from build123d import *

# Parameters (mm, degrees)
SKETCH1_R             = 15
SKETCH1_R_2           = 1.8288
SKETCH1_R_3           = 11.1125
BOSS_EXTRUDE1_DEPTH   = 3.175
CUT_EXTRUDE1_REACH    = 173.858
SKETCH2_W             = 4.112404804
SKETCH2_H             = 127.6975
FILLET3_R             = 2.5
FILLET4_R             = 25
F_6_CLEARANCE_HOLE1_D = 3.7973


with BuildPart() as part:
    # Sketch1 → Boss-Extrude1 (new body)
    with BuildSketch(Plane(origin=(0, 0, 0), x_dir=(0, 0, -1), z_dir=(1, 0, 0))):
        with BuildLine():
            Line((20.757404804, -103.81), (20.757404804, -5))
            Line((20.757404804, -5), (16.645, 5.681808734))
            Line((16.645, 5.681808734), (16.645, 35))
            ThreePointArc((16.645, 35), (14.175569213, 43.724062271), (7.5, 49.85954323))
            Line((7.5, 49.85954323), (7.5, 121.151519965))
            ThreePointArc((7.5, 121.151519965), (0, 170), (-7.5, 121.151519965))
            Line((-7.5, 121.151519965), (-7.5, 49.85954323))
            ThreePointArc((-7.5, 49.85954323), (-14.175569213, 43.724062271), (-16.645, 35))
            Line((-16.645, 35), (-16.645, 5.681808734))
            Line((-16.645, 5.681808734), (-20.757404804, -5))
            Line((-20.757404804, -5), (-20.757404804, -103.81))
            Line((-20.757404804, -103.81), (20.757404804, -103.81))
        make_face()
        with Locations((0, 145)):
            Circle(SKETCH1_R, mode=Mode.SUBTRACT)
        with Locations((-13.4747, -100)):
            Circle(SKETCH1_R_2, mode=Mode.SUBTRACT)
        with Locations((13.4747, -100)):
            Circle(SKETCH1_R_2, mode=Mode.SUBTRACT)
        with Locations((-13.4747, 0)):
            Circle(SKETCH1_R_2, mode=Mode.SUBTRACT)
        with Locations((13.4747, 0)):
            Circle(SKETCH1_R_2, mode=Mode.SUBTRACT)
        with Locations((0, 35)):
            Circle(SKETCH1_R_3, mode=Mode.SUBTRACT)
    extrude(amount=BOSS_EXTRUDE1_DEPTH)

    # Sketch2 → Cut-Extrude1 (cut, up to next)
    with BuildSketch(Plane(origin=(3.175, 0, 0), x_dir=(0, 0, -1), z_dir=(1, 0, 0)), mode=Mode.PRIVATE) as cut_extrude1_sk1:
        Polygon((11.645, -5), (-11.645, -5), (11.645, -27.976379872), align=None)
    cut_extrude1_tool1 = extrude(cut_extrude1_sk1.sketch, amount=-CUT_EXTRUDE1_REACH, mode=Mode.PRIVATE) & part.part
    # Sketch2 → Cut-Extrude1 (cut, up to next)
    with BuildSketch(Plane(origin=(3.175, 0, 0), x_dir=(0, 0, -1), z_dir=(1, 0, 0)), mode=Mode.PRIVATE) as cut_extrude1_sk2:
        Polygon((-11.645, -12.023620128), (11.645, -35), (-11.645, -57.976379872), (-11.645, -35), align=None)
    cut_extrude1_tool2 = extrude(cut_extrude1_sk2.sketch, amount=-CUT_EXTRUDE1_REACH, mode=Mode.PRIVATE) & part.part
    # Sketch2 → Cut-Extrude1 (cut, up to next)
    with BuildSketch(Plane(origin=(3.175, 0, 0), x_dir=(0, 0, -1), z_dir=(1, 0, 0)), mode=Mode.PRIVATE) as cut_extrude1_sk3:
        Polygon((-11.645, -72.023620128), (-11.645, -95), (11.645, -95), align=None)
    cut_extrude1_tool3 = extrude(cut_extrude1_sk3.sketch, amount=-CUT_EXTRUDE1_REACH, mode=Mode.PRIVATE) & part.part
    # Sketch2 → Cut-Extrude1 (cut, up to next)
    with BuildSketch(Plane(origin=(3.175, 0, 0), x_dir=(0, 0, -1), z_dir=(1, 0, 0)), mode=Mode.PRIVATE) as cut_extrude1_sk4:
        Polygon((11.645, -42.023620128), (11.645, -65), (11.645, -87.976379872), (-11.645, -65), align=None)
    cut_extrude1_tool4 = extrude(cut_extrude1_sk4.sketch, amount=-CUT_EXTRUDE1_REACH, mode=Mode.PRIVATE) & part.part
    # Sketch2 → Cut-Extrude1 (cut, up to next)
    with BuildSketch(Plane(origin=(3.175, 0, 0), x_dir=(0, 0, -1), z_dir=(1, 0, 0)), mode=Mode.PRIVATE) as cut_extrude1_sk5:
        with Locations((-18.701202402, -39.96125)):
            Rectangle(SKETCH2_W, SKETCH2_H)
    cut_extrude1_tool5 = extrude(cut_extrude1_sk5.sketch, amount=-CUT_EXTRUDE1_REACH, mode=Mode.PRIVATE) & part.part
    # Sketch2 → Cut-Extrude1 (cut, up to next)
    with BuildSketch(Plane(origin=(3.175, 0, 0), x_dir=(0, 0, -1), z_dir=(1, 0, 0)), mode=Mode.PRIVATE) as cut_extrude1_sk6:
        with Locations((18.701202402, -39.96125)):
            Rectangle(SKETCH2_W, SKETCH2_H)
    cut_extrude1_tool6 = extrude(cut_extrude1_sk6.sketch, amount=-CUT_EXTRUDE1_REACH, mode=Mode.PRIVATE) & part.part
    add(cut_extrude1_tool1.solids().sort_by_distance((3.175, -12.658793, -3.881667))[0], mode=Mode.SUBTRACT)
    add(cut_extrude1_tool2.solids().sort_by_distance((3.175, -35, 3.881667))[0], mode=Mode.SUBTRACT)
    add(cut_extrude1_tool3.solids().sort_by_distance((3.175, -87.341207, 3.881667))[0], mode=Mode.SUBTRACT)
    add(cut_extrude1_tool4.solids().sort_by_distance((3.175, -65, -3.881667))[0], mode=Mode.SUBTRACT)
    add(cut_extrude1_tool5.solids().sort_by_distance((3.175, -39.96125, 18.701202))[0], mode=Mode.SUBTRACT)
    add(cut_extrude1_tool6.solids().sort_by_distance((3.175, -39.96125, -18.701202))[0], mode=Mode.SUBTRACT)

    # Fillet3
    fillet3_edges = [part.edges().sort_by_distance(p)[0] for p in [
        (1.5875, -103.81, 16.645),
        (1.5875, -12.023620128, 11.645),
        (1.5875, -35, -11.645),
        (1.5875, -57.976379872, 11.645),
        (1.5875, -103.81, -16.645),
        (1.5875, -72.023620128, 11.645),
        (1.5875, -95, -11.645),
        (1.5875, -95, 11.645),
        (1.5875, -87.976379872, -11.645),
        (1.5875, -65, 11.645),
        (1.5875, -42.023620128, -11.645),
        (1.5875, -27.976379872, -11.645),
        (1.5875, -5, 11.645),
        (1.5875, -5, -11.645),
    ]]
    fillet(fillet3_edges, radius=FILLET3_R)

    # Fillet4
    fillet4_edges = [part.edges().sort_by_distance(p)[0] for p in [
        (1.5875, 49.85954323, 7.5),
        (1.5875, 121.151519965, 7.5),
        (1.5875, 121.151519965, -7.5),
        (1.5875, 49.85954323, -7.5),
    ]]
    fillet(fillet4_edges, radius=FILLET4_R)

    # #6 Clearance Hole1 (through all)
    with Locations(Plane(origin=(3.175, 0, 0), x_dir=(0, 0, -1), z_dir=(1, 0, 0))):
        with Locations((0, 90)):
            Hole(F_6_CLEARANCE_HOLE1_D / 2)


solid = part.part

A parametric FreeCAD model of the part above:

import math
import FreeCAD as App
import Part
import Sketcher
from FreeCAD import Vector


def edges_at(feature, points):
    """Names of the edges that pass closest to the given points."""
    edges = feature.Shape.Edges
    near = lambda p: min(range(len(edges)), key=lambda i: edges[i].distToShape(Part.Vertex(*p))[0])
    return sorted({f"Edge{near(p) + 1}" for p in points})


def add_polygon(sketch, points):
    """Adds a closed chain of lines whose ends are joined by coincident constraints."""
    first, n = sketch.GeometryCount, len(points)
    for a, b in zip(points, points[1:] + points[:1]):
        sketch.addGeometry(Part.LineSegment(App.Vector(*a, 0), App.Vector(*b, 0)), False)
    for i in range(n):
        sketch.addConstraint(Sketcher.Constraint("Coincident", first + i, 2, first + (i + 1) % n, 1))

doc = App.newDocument("Part")
body = doc.addObject("PartDesign::Body", "Body")

sketch1 = body.newObject("Sketcher::SketchObject", "Sketch")
sketch1.AttachmentSupport = (doc.getObject("YZ_Plane"), [""])
sketch1.MapMode = "FlatFace"
sketch1.addGeometry(Part.LineSegment(Vector(-103.8, -20.8, 0), Vector(-5, -20.8, 0)), False)
sketch1.addGeometry(Part.LineSegment(Vector(-5, -20.8, 0), Vector(5.7, -16.6, 0)), False)
sketch1.addGeometry(Part.LineSegment(Vector(5.7, -16.6, 0), Vector(35, -16.6, 0)), False)
sketch1.addGeometry(Part.ArcOfCircle(Part.Circle(Vector(35, 0, 0), Vector(0, 0, 1), 16.6), math.radians(-90), math.radians(-27)), False)
sketch1.addGeometry(Part.LineSegment(Vector(49.9, -7.5, 0), Vector(121.2, -7.5, 0)), False)
sketch1.addGeometry(Part.ArcOfCircle(Part.Circle(Vector(145, 0, 0), Vector(0, 0, 1), 25), math.radians(-163), math.radians(163)), False)
sketch1.addGeometry(Part.LineSegment(Vector(121.2, 7.5, 0), Vector(49.9, 7.5, 0)), False)
sketch1.addGeometry(Part.ArcOfCircle(Part.Circle(Vector(35, 0, 0), Vector(0, 0, 1), 16.6), math.radians(27), math.radians(90)), False)
sketch1.addGeometry(Part.LineSegment(Vector(35, 16.6, 0), Vector(5.7, 16.6, 0)), False)
sketch1.addGeometry(Part.LineSegment(Vector(5.7, 16.6, 0), Vector(-5, 20.8, 0)), False)
sketch1.addGeometry(Part.LineSegment(Vector(-5, 20.8, 0), Vector(-103.8, 20.8, 0)), False)
sketch1.addGeometry(Part.LineSegment(Vector(-103.8, 20.8, 0), Vector(-103.8, -20.8, 0)), False)
sketch1.addGeometry(Part.Circle(Vector(-100, 13.5, 0), Vector(0, 0, 1), 1.8), False)
sketch1.addGeometry(Part.Circle(Vector(0, 13.5, 0), Vector(0, 0, 1), 1.8), False)
sketch1.addGeometry(Part.Circle(Vector(-100, -13.5, 0), Vector(0, 0, 1), 1.8), False)
sketch1.addGeometry(Part.Circle(Vector(0, -13.5, 0), Vector(0, 0, 1), 1.8), False)
sketch1.addGeometry(Part.Circle(Vector(35, 0, 0), Vector(0, 0, 1), 11.1), False)
sketch1.addGeometry(Part.Circle(Vector(145, 0, 0), Vector(0, 0, 1), 15), False)
sketch1.addConstraint(Sketcher.Constraint("Coincident", 0, 2, 1, 1))
sketch1.addConstraint(Sketcher.Constraint("Coincident", 1, 2, 2, 1))
sketch1.addConstraint(Sketcher.Constraint("Tangent", 2, 2, 3, 1))
sketch1.addConstraint(Sketcher.Constraint("Coincident", 3, 2, 4, 1))
sketch1.addConstraint(Sketcher.Constraint("Coincident", 4, 2, 5, 1))
sketch1.addConstraint(Sketcher.Constraint("Coincident", 5, 2, 6, 1))
sketch1.addConstraint(Sketcher.Constraint("Coincident", 6, 2, 7, 1))
sketch1.addConstraint(Sketcher.Constraint("Tangent", 7, 2, 8, 1))
sketch1.addConstraint(Sketcher.Constraint("Coincident", 8, 2, 9, 1))
sketch1.addConstraint(Sketcher.Constraint("Coincident", 9, 2, 10, 1))
sketch1.addConstraint(Sketcher.Constraint("Coincident", 10, 2, 11, 1))
sketch1.addConstraint(Sketcher.Constraint("Coincident", 11, 2, 0, 1))
sketch1.addConstraint(Sketcher.Constraint("Horizontal", 0))
sketch1.addConstraint(Sketcher.Constraint("Horizontal", 2))
sketch1.addConstraint(Sketcher.Constraint("Horizontal", 4))
sketch1.addConstraint(Sketcher.Constraint("Horizontal", 6))
sketch1.addConstraint(Sketcher.Constraint("Horizontal", 8))
sketch1.addConstraint(Sketcher.Constraint("Horizontal", 10))
sketch1.addConstraint(Sketcher.Constraint("Vertical", 11))
sketch1.addConstraint(Sketcher.Constraint("Coincident", 7, 3, 3, 3))
sketch1.addConstraint(Sketcher.Constraint("Coincident", 16, 3, 3, 3))
sketch1.addConstraint(Sketcher.Constraint("Coincident", 17, 3, 5, 3))
sketch1.addConstraint(Sketcher.Constraint("Equal", 3, 7))
sketch1.addConstraint(Sketcher.Constraint("Equal", 12, 13))
sketch1.addConstraint(Sketcher.Constraint("Equal", 13, 14))
sketch1.addConstraint(Sketcher.Constraint("Equal", 14, 15))
sketch1.addConstraint(Sketcher.Constraint("Symmetric", 13, 3, 15, 3, -1, 1))
sketch1.addConstraint(Sketcher.Constraint("Symmetric", 12, 3, 14, 3, -1))
sketch1.addConstraint(Sketcher.Constraint("Symmetric", 4, 2, 5, 2, -1))
sketch1.addConstraint(Sketcher.Constraint("Symmetric", 1, 2, 8, 2, -1))
sketch1.addConstraint(Sketcher.Constraint("Symmetric", 0, 2, 9, 2, -1))
sketch1.addConstraint(Sketcher.Constraint("PointOnObject", 13, 3, -2))
sketch1.addConstraint(Sketcher.Constraint("Horizontal", 12, 3, 13, 3))
sketch1.addConstraint(Sketcher.Constraint("Diameter", 17, 30.0))
sketch1.addConstraint(Sketcher.Constraint("Radius", 5, 25.0))
sketch1.addConstraint(Sketcher.Constraint("Diameter", 16, 22.225))
sketch1.addConstraint(Sketcher.Constraint("DistanceX", -1, 1, 3, 3, 35.0))
sketch1.addConstraint(Sketcher.Constraint("DistanceX", -1, 1, 5, 3, 145.0))
sketch1.addConstraint(Sketcher.Constraint("DistanceX", 12, 3, -1, 1, 100.0))
sketch1.addConstraint(Sketcher.Constraint("DistanceX", 0, 2, -1, 1, 5.0))
sketch1.addConstraint(Sketcher.Constraint("Radius", 3, 16.645))
sketch1.addConstraint(Sketcher.Constraint("DistanceY", 4, 2, 5, 2, 15.0))
sketch1.addConstraint(Sketcher.Constraint("Diameter", 12, 3.6576))
sketch1.addConstraint(Sketcher.Constraint("DistanceX", 0, 1, 0, 2, 98.81))
sketch1.addConstraint(Sketcher.Constraint("DistanceX", 2, 1, 2, 2, 29.318191))
sketch1.addConstraint(Sketcher.Constraint("DistanceY", 11, 2, 11, 1, 41.51481))
sketch1.addConstraint(Sketcher.Constraint("DistanceY", -1, 1, 12, 3, 13.4747))
pad1 = body.newObject("PartDesign::Pad", "Pad")
pad1.Profile = sketch1
pad1.Length = 3.175

sketch2 = body.newObject("Sketcher::SketchObject", "Sketch001")
sketch2.AttachmentSupport = (doc.getObject("YZ_Plane"), [""])
sketch2.MapMode = "FlatFace"
sketch2.AttachmentOffset = App.Placement(Vector(0, 0, 3.175), App.Rotation())
add_polygon(sketch2, [(-5, -12), (-5, 12), (-28, -12)])
sketch2.addConstraint(Sketcher.Constraint("Vertical", 0))
sketch2.addConstraint(Sketcher.Constraint("Horizontal", 2))
sketch2.addConstraint(Sketcher.Constraint("DistanceX", 0, 2, -1, 1, 5.0))
sketch2.addConstraint(Sketcher.Constraint("DistanceY", 0, 1, 0, 2, 23.29))
sketch2.addConstraint(Sketcher.Constraint("DistanceY", -1, 1, 0, 2, 11.645))
sketch2.addConstraint(Sketcher.Constraint("DistanceX", 2, 1, 2, 2, 22.97638))
pocket1 = body.newObject("PartDesign::Pocket", "Pocket")
pocket1.Profile = sketch2
pocket1.Type = "UpToFirst"

sketch3 = body.newObject("Sketcher::SketchObject", "Sketch002")
sketch3.AttachmentSupport = (doc.getObject("YZ_Plane"), [""])
sketch3.MapMode = "FlatFace"
sketch3.AttachmentOffset = App.Placement(Vector(0, 0, 3.175), App.Rotation())
add_polygon(sketch3, [(-35, -12), (-12, 12), (-58, 12)])
sketch3.addConstraint(Sketcher.Constraint("Horizontal", 1))
sketch3.addConstraint(Sketcher.Constraint("Equal", 0, 2))
sketch3.addConstraint(Sketcher.Constraint("DistanceX", 2, 2, -1, 1, 35.0))
sketch3.addConstraint(Sketcher.Constraint("DistanceY", 2, 2, 0, 2, 23.29))
sketch3.addConstraint(Sketcher.Constraint("DistanceY", -1, 1, 0, 2, 11.645))
sketch3.addConstraint(Sketcher.Constraint("DistanceX", 1, 2, 1, 1, 45.95276))
pocket2 = body.newObject("PartDesign::Pocket", "Pocket001")
pocket2.Profile = sketch3
pocket2.Type = "UpToFirst"

sketch4 = body.newObject("Sketcher::SketchObject", "Sketch003")
sketch4.AttachmentSupport = (doc.getObject("YZ_Plane"), [""])
sketch4.MapMode = "FlatFace"
sketch4.AttachmentOffset = App.Placement(Vector(0, 0, 3.175), App.Rotation())
add_polygon(sketch4, [(-72, 12), (-95, 12), (-95, -12)])
sketch4.addConstraint(Sketcher.Constraint("Horizontal", 0))
sketch4.addConstraint(Sketcher.Constraint("Vertical", 1))
sketch4.addConstraint(Sketcher.Constraint("DistanceX", 0, 2, -1, 1, 95.0))
sketch4.addConstraint(Sketcher.Constraint("DistanceY", 1, 2, 1, 1, 23.29))
sketch4.addConstraint(Sketcher.Constraint("DistanceY", -1, 1, 0, 2, 11.645))
sketch4.addConstraint(Sketcher.Constraint("DistanceX", 0, 2, 0, 1, 22.97638))
pocket3 = body.newObject("PartDesign::Pocket", "Pocket002")
pocket3.Profile = sketch4
pocket3.Type = "UpToFirst"

sketch5 = body.newObject("Sketcher::SketchObject", "Sketch004")
sketch5.AttachmentSupport = (doc.getObject("YZ_Plane"), [""])
sketch5.MapMode = "FlatFace"
sketch5.AttachmentOffset = App.Placement(Vector(0, 0, 3.175), App.Rotation())
add_polygon(sketch5, [(-88, -12), (-42, -12), (-65, 12)])
sketch5.addConstraint(Sketcher.Constraint("Horizontal", 0))
sketch5.addConstraint(Sketcher.Constraint("Equal", 1, 2))
sketch5.addConstraint(Sketcher.Constraint("DistanceX", 1, 2, -1, 1, 65.0))
sketch5.addConstraint(Sketcher.Constraint("DistanceY", 0, 2, 1, 2, 23.29))
sketch5.addConstraint(Sketcher.Constraint("DistanceY", 0, 2, -1, 1, 11.645))
sketch5.addConstraint(Sketcher.Constraint("DistanceX", 0, 1, 0, 2, 45.95276))
pocket4 = body.newObject("PartDesign::Pocket", "Pocket003")
pocket4.Profile = sketch5
pocket4.Type = "UpToFirst"

sketch6 = body.newObject("Sketcher::SketchObject", "Sketch005")
sketch6.AttachmentSupport = (doc.getObject("YZ_Plane"), [""])
sketch6.MapMode = "FlatFace"
sketch6.AttachmentOffset = App.Placement(Vector(0, 0, 3.175), App.Rotation())
add_polygon(sketch6, [(23.9, 20.8), (-103.8, 20.8), (-103.8, 16.6), (23.9, 16.6)])
sketch6.addConstraint(Sketcher.Constraint("Horizontal", 0))
sketch6.addConstraint(Sketcher.Constraint("Vertical", 1))
sketch6.addConstraint(Sketcher.Constraint("Horizontal", 2))
sketch6.addConstraint(Sketcher.Constraint("Vertical", 3))
sketch6.addConstraint(Sketcher.Constraint("DistanceX", 0, 2, -1, 1, 103.81))
sketch6.addConstraint(Sketcher.Constraint("DistanceX", 0, 2, 0, 1, 127.6975))
sketch6.addConstraint(Sketcher.Constraint("DistanceY", -1, 1, 1, 2, 16.645))
sketch6.addConstraint(Sketcher.Constraint("DistanceY", 1, 2, 1, 1, 4.112405))
pocket5 = body.newObject("PartDesign::Pocket", "Pocket004")
pocket5.Profile = sketch6
pocket5.Type = "UpToFirst"

sketch7 = body.newObject("Sketcher::SketchObject", "Sketch006")
sketch7.AttachmentSupport = (doc.getObject("YZ_Plane"), [""])
sketch7.MapMode = "FlatFace"
sketch7.AttachmentOffset = App.Placement(Vector(0, 0, 3.175), App.Rotation())
add_polygon(sketch7, [(23.9, -16.6), (-103.8, -16.6), (-103.8, -20.8), (23.9, -20.8)])
sketch7.addConstraint(Sketcher.Constraint("Horizontal", 0))
sketch7.addConstraint(Sketcher.Constraint("Vertical", 1))
sketch7.addConstraint(Sketcher.Constraint("Horizontal", 2))
sketch7.addConstraint(Sketcher.Constraint("Vertical", 3))
sketch7.addConstraint(Sketcher.Constraint("DistanceX", 0, 2, -1, 1, 103.81))
sketch7.addConstraint(Sketcher.Constraint("DistanceX", 0, 2, 0, 1, 127.6975))
sketch7.addConstraint(Sketcher.Constraint("DistanceY", 0, 2, -1, 1, 16.645))
sketch7.addConstraint(Sketcher.Constraint("DistanceY", 1, 2, 1, 1, 4.112405))
pocket6 = body.newObject("PartDesign::Pocket", "Pocket005")
pocket6.Profile = sketch7
pocket6.Type = "UpToFirst"
doc.recompute()

fillet = body.newObject("PartDesign::Fillet", "Fillet")
fillet.Base = (pocket6, edges_at(pocket6, [
    (1.587, -103.81, 16.645),
    (1.587, -12.024, 11.645),
    (1.587, -35, -11.645),
    (1.587, -57.976, 11.645),
    (1.587, -103.81, -16.645),
    (1.587, -72.024, 11.645),
    (1.587, -95, -11.645),
    (1.587, -95, 11.645),
    (1.587, -87.976, -11.645),
    (1.587, -65, 11.645),
    (1.587, -42.024, -11.645),
    (1.587, -27.976, -11.645),
    (1.587, -5, 11.645),
    (1.587, -5, -11.645),
]))
fillet.Radius = 2.5
doc.recompute()

fillet2 = body.newObject("PartDesign::Fillet", "Fillet001")
fillet2.Base = (fillet, edges_at(fillet, [
    (1.587, 49.86, 7.5),
    (1.587, 121.152, 7.5),
    (1.587, 121.152, -7.5),
    (1.587, 49.86, -7.5),
]))
fillet2.Radius = 25

sketch8 = body.newObject("Sketcher::SketchObject", "Sketch007")
sketch8.AttachmentSupport = (doc.getObject("YZ_Plane"), [""])
sketch8.MapMode = "FlatFace"
sketch8.AttachmentOffset = App.Placement(Vector(0, 0, 3.175), App.Rotation())
sketch8.addGeometry(Part.Circle(Vector(90, 0, 0), Vector(0, 0, 1), 1.9), False)
sketch8.addConstraint(Sketcher.Constraint("PointOnObject", 0, 3, -1))
sketch8.addConstraint(Sketcher.Constraint("DistanceX", -1, 1, 0, 3, 90.0))
sketch8.addConstraint(Sketcher.Constraint("Diameter", 0, 3.7973))
doc.recompute()
hole = body.newObject("PartDesign::Hole", "Hole")
hole.Profile = sketch8
hole.ThreadType = "None"
hole.Diameter = 3.7973
hole.DepthType = "ThroughAll"

doc.recompute()
